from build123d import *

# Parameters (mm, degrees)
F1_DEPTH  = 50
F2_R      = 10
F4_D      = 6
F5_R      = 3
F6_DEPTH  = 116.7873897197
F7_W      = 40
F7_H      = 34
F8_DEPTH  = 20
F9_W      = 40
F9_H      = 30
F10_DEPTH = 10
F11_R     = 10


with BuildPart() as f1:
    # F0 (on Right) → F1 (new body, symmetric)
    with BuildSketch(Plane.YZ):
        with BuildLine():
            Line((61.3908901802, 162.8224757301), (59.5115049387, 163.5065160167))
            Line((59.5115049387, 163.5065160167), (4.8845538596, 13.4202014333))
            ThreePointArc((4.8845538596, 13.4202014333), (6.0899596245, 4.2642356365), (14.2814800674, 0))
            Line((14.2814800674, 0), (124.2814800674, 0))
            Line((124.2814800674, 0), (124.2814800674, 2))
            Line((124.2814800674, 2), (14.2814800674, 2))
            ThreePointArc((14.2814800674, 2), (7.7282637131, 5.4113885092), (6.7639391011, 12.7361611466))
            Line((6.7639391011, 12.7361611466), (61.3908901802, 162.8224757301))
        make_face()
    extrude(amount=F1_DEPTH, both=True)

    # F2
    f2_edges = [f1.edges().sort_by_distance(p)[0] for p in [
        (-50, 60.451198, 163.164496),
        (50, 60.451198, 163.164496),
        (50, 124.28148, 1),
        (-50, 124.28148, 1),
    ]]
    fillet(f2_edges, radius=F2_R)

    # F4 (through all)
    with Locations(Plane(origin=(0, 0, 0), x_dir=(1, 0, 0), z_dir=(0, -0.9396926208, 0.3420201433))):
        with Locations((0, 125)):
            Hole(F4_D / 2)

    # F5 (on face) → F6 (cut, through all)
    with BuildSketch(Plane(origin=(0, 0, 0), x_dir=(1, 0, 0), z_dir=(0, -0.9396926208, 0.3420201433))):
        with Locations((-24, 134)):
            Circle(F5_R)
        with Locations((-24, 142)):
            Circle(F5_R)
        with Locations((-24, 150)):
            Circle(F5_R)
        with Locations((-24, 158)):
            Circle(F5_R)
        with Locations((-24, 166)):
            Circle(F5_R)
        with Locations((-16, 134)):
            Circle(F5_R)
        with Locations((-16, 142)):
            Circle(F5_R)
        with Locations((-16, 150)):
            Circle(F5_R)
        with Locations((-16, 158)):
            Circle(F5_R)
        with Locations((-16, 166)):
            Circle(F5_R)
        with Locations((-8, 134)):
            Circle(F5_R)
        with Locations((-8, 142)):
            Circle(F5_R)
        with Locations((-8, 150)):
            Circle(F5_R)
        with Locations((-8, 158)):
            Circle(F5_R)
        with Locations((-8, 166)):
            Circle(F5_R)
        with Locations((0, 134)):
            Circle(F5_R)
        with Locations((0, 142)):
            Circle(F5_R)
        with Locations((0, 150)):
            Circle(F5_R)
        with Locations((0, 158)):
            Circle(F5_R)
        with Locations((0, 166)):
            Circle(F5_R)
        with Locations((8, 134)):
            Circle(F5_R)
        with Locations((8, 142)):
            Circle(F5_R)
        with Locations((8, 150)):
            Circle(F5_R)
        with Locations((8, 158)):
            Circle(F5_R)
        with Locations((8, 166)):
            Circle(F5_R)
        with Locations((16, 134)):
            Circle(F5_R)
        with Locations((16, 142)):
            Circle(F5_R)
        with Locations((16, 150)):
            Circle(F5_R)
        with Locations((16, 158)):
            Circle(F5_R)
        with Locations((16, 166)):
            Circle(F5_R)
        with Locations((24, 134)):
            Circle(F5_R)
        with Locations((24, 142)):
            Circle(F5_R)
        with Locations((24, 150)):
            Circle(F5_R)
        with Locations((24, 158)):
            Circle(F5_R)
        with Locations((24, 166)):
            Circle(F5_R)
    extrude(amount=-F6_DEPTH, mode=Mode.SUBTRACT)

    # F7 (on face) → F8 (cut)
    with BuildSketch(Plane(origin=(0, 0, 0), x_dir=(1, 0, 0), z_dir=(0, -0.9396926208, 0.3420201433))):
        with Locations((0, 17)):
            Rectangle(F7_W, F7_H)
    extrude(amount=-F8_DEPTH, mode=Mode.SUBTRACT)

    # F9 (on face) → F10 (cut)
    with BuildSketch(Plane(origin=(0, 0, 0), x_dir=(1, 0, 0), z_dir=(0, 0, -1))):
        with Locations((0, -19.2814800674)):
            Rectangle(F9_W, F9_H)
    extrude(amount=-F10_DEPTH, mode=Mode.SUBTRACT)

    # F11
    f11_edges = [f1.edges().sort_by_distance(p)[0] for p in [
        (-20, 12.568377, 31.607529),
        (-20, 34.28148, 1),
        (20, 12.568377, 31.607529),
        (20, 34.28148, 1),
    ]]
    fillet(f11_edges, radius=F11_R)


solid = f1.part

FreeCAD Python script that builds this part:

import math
import FreeCAD as App
import Part
import Sketcher
Q = App.Units.Quantity


def edges_at(feature, points):
    """Names of the edges that pass closest to the given points."""
    edges = feature.Shape.Edges
    near = lambda p: min(range(len(edges)), key=lambda i: edges[i].distToShape(Part.Vertex(*p))[0])
    return sorted({f"Edge{near(p) + 1}" for p in points})

doc = App.newDocument("Part")
body = doc.addObject("PartDesign::Body", "Body")

# Sketch on YZ plane
sketch1 = body.newObject("Sketcher::SketchObject", "Sketch")
sketch1.AttachmentSupport = (doc.getObject("YZ_Plane"), [""])
sketch1.MapMode = "FlatFace"
sketch1.addGeometry([
    Part.LineSegment(App.Vector(61.4, 162.8, 0), App.Vector(59.5, 163.5, 0)),  # 0
    Part.LineSegment(App.Vector(59.5, 163.5, 0), App.Vector(4.9, 13.4, 0)),  # 1
    Part.ArcOfCircle(Part.Circle(App.Vector(14.3, 10, 0), App.Vector(0, 0, 1), 10), math.radians(160), math.radians(270)),  # 2
    Part.LineSegment(App.Vector(14.3, 0, 0), App.Vector(124.3, 0, 0)),  # 3
    Part.LineSegment(App.Vector(124.3, 0, 0), App.Vector(124.3, 2, 0)),  # 4
    Part.LineSegment(App.Vector(124.3, 2, 0), App.Vector(14.3, 2, 0)),  # 5
    Part.ArcOfCircle(Part.Circle(App.Vector(14.3, 10, 0), App.Vector(0, 0, 1), 8), math.radians(160), math.radians(270)),  # 6
    Part.LineSegment(App.Vector(6.8, 12.7, 0), App.Vector(61.4, 162.8, 0)),  # 7
], False)
sketch1.addConstraint([
    Sketcher.Constraint("Coincident", 0, 2, 1, 1),
    Sketcher.Constraint("Tangent", 1, 2, 2, 1),
    Sketcher.Constraint("Tangent", 2, 2, 3, 1),
    Sketcher.Constraint("Coincident", 3, 2, 4, 1),
    Sketcher.Constraint("Coincident", 4, 2, 5, 1),
    Sketcher.Constraint("Tangent", 5, 2, 6, 2),
    Sketcher.Constraint("Tangent", 6, 1, 7, 1),
    Sketcher.Constraint("Coincident", 7, 2, 0, 1),
    Sketcher.Constraint("Horizontal", 3),
    Sketcher.Constraint("Vertical", 4),
    Sketcher.Constraint("Horizontal", 5),
    Sketcher.Constraint("Coincident", 6, 3, 2, 3),
    Sketcher.Constraint("PointOnObject", 2, 2, -1),
    Sketcher.Constraint("Perpendicular", 0, 1),
    Sketcher.Constraint("Parallel", 1, 7),
    Sketcher.Constraint("Radius", 2, 10.0),
    Sketcher.Constraint("Radius", 6, 8.0),
    Sketcher.Constraint("DistanceX", 3, 1, 3, 2, 110.0),
    Sketcher.Constraint("Angle", 0, Q("160 deg")),
    Sketcher.Constraint("Distance", 1, 159.71852),
    Sketcher.Constraint("DistanceX", -1, 1, 2, 3, 14.28148),
])
pad1 = body.newObject("PartDesign::Pad", "Pad")
pad1.Profile = sketch1
pad1.Length = 100
pad1.Midplane = True
doc.recompute()

fillet = body.newObject("PartDesign::Fillet", "Fillet")
fillet.Base = (pad1, edges_at(pad1, [
    (-50, 60.451, 163.164),
    (50, 60.451, 163.164),
    (50, 124.281, 1),
    (-50, 124.281, 1),
]))
fillet.Radius = 10

# Sketch on an angled plane
sketch2 = body.newObject("Sketcher::SketchObject", "Sketch001")
sketch2.Placement = App.Placement(App.Vector(0, 0, 0), App.Rotation(App.Vector(1, 0, 0), App.Vector(0, 0.342020143, 0.939692621), App.Vector(0, -0.939692621, 0.342020143), "ZXY"))
sketch2.addGeometry(Part.Circle(App.Vector(0, 125, 0), App.Vector(0, 0, 1), 3), False)
sketch2.addConstraint([
    Sketcher.Constraint("PointOnObject", 0, 3, -2),
    Sketcher.Constraint("Diameter", 0, 6.0),
    Sketcher.Constraint("DistanceY", -1, 1, 0, 3, 125.0),
])
doc.recompute()
hole = body.newObject("PartDesign::Hole", "Hole")
hole.Profile = sketch2
hole.ThreadType = "None"
hole.Diameter = 6
hole.DepthType = "ThroughAll"

# Sketch on an angled plane
sketch3 = body.newObject("Sketcher::SketchObject", "Sketch002")
sketch3.Placement = App.Placement(App.Vector(0, 0, 0), App.Rotation(App.Vector(1, 0, 0), App.Vector(0, 0.342020143, 0.939692621), App.Vector(0, -0.939692621, 0.342020143), "ZXY"))
sketch3.addGeometry([
    Part.Circle(App.Vector(-24, 134, 0), App.Vector(0, 0, 1), 3),  # 0
    Part.Circle(App.Vector(-24, 142, 0), App.Vector(0, 0, 1), 3),  # 1
    Part.Circle(App.Vector(-24, 150, 0), App.Vector(0, 0, 1), 3),  # 2
    Part.Circle(App.Vector(-24, 158, 0), App.Vector(0, 0, 1), 3),  # 3
    Part.Circle(App.Vector(-24, 166, 0), App.Vector(0, 0, 1), 3),  # 4
    Part.Circle(App.Vector(-16, 134, 0), App.Vector(0, 0, 1), 3),  # 5
    Part.Circle(App.Vector(-16, 142, 0), App.Vector(0, 0, 1), 3),  # 6
    Part.Circle(App.Vector(-16, 150, 0), App.Vector(0, 0, 1), 3),  # 7
    Part.Circle(App.Vector(-16, 158, 0), App.Vector(0, 0, 1), 3),  # 8
    Part.Circle(App.Vector(-16, 166, 0), App.Vector(0, 0, 1), 3),  # 9
    Part.Circle(App.Vector(-8, 134, 0), App.Vector(0, 0, 1), 3),  # 10
    Part.Circle(App.Vector(-8, 142, 0), App.Vector(0, 0, 1), 3),  # 11
    Part.Circle(App.Vector(-8, 150, 0), App.Vector(0, 0, 1), 3),  # 12
    Part.Circle(App.Vector(-8, 158, 0), App.Vector(0, 0, 1), 3),  # 13
    Part.Circle(App.Vector(-8, 166, 0), App.Vector(0, 0, 1), 3),  # 14
    Part.Circle(App.Vector(0, 134, 0), App.Vector(0, 0, 1), 3),  # 15
    Part.Circle(App.Vector(0, 142, 0), App.Vector(0, 0, 1), 3),  # 16
    Part.Circle(App.Vector(0, 150, 0), App.Vector(0, 0, 1), 3),  # 17
    Part.Circle(App.Vector(0, 158, 0), App.Vector(0, 0, 1), 3),  # 18
    Part.Circle(App.Vector(0, 166, 0), App.Vector(0, 0, 1), 3),  # 19
    Part.Circle(App.Vector(8, 134, 0), App.Vector(0, 0, 1), 3),  # 20
    Part.Circle(App.Vector(8, 142, 0), App.Vector(0, 0, 1), 3),  # 21
    Part.Circle(App.Vector(8, 150, 0), App.Vector(0, 0, 1), 3),  # 22
    Part.Circle(App.Vector(8, 158, 0), App.Vector(0, 0, 1), 3),  # 23
    Part.Circle(App.Vector(8, 166, 0), App.Vector(0, 0, 1), 3),  # 24
    Part.Circle(App.Vector(16, 134, 0), App.Vector(0, 0, 1), 3),  # 25
    Part.Circle(App.Vector(16, 142, 0), App.Vector(0, 0, 1), 3),  # 26
    Part.Circle(App.Vector(16, 150, 0), App.Vector(0, 0, 1), 3),  # 27
    Part.Circle(App.Vector(16, 158, 0), App.Vector(0, 0, 1), 3),  # 28
    Part.Circle(App.Vector(16, 166, 0), App.Vector(0, 0, 1), 3),  # 29
    Part.Circle(App.Vector(24, 134, 0), App.Vector(0, 0, 1), 3),  # 30
    Part.Circle(App.Vector(24, 142, 0), App.Vector(0, 0, 1), 3),  # 31
    Part.Circle(App.Vector(24, 150, 0), App.Vector(0, 0, 1), 3),  # 32
    Part.Circle(App.Vector(24, 158, 0), App.Vector(0, 0, 1), 3),  # 33
    Part.Circle(App.Vector(24, 166, 0), App.Vector(0, 0, 1), 3),  # 34
], False)
sketch3.addConstraint([
    Sketcher.Constraint("Equal", 0, 1),
    Sketcher.Constraint("Equal", 1, 2),
    Sketcher.Constraint("Equal", 2, 3),
    Sketcher.Constraint("Equal", 3, 4),
    Sketcher.Constraint("Equal", 4, 5),
    Sketcher.Constraint("Equal", 5, 6),
    Sketcher.Constraint("Equal", 6, 7),
    Sketcher.Constraint("Equal", 7, 8),
    Sketcher.Constraint("Equal", 8, 9),
    Sketcher.Constraint("Equal", 9, 10),
    Sketcher.Constraint("Equal", 10, 11),
    Sketcher.Constraint("Equal", 11, 12),
    Sketcher.Constraint("Equal", 12, 13),
    Sketcher.Constraint("Equal", 13, 14),
    Sketcher.Constraint("Equal", 14, 15),
    Sketcher.Constraint("Equal", 15, 16),
    Sketcher.Constraint("Equal", 16, 17),
    Sketcher.Constraint("Equal", 17, 18),
    Sketcher.Constraint("Equal", 18, 19),
    Sketcher.Constraint("Equal", 19, 20),
    Sketcher.Constraint("Equal", 20, 21),
    Sketcher.Constraint("Equal", 21, 22),
    Sketcher.Constraint("Equal", 22, 23),
    Sketcher.Constraint("Equal", 23, 24),
    Sketcher.Constraint("Equal", 24, 25),
    Sketcher.Constraint("Equal", 25, 26),
    Sketcher.Constraint("Equal", 26, 27),
    Sketcher.Constraint("Equal", 27, 28),
    Sketcher.Constraint("Equal", 28, 29),
    Sketcher.Constraint("Equal", 29, 30),
    Sketcher.Constraint("Equal", 30, 31),
    Sketcher.Constraint("Equal", 31, 32),
    Sketcher.Constraint("Equal", 32, 33),
    Sketcher.Constraint("Equal", 33, 34),
    Sketcher.Constraint("Symmetric", 10, 3, 20, 3, -2),
    Sketcher.Constraint("Symmetric", 11, 3, 21, 3, -2),
    Sketcher.Constraint("Symmetric", 12, 3, 22, 3, -2),
    Sketcher.Constraint("Symmetric", 13, 3, 23, 3, -2),
    Sketcher.Constraint("Symmetric", 14, 3, 24, 3, -2),
    Sketcher.Constraint("Symmetric", 5, 3, 25, 3, -2),
    Sketcher.Constraint("Symmetric", 6, 3, 26, 3, -2),
    Sketcher.Constraint("Symmetric", 7, 3, 27, 3, -2),
    Sketcher.Constraint("Symmetric", 8, 3, 28, 3, -2),
    Sketcher.Constraint("Symmetric", 9, 3, 29, 3, -2),
    Sketcher.Constraint("Symmetric", 0, 3, 30, 3, -2),
    Sketcher.Constraint("Symmetric", 1, 3, 31, 3, -2),
    Sketcher.Constraint("Symmetric", 2, 3, 32, 3, -2),
    Sketcher.Constraint("Symmetric", 3, 3, 33, 3, -2),
    Sketcher.Constraint("Symmetric", 4, 3, 34, 3, -2),
    Sketcher.Constraint("PointOnObject", 15, 3, -2),
    Sketcher.Constraint("PointOnObject", 16, 3, -2),
    Sketcher.Constraint("PointOnObject", 17, 3, -2),
    Sketcher.Constraint("PointOnObject", 18, 3, -2),
    Sketcher.Constraint("PointOnObject", 19, 3, -2),
    Sketcher.Constraint("Horizontal", 0, 3, 5, 3),
    Sketcher.Constraint("Horizontal", 1, 3, 6, 3),
    Sketcher.Constraint("Horizontal", 2, 3, 7, 3),
    Sketcher.Constraint("Horizontal", 3, 3, 8, 3),
    Sketcher.Constraint("Horizontal", 4, 3, 9, 3),
    Sketcher.Constraint("Horizontal", 5, 3, 10, 3),
    Sketcher.Constraint("Horizontal", 6, 3, 11, 3),
    Sketcher.Constraint("Horizontal", 7, 3, 12, 3),
    Sketcher.Constraint("Horizontal", 8, 3, 13, 3),
    Sketcher.Constraint("Horizontal", 9, 3, 14, 3),
    Sketcher.Constraint("Horizontal", 10, 3, 15, 3),
    Sketcher.Constraint("Horizontal", 11, 3, 16, 3),
    Sketcher.Constraint("Horizontal", 12, 3, 17, 3),
    Sketcher.Constraint("Horizontal", 13, 3, 18, 3),
    Sketcher.Constraint("Horizontal", 14, 3, 19, 3),
    Sketcher.Constraint("Vertical", 0, 3, 1, 3),
    Sketcher.Constraint("Vertical", 1, 3, 2, 3),
    Sketcher.Constraint("Vertical", 2, 3, 3, 3),
    Sketcher.Constraint("Vertical", 3, 3, 4, 3),
    Sketcher.Constraint("Vertical", 5, 3, 6, 3),
    Sketcher.Constraint("Vertical", 6, 3, 7, 3),
    Sketcher.Constraint("Vertical", 7, 3, 8, 3),
    Sketcher.Constraint("Vertical", 8, 3, 9, 3),
    Sketcher.Constraint("Vertical", 10, 3, 11, 3),
    Sketcher.Constraint("Vertical", 11, 3, 12, 3),
    Sketcher.Constraint("Vertical", 12, 3, 13, 3),
    Sketcher.Constraint("Vertical", 13, 3, 14, 3),
    Sketcher.Constraint("Diameter", 0, 6.0),
    Sketcher.Constraint("DistanceX", 0, 3, -1, 1, 24.0),
    Sketcher.Constraint("DistanceY", -1, 1, 0, 3, 134.0),
    Sketcher.Constraint("DistanceY", -1, 1, 1, 3, 142.0),
    Sketcher.Constraint("DistanceY", -1, 1, 2, 3, 150.0),
    Sketcher.Constraint("DistanceY", -1, 1, 3, 3, 158.0),
    Sketcher.Constraint("DistanceY", -1, 1, 4, 3, 166.0),
    Sketcher.Constraint("DistanceX", 5, 3, -1, 1, 16.0),
    Sketcher.Constraint("DistanceX", 10, 3, -1, 1, 8.0),
])
pocket1 = body.newObject("PartDesign::Pocket", "Pocket")
pocket1.Profile = sketch3
pocket1.Type = "ThroughAll"

# Sketch on an angled plane
sketch4 = body.newObject("Sketcher::SketchObject", "Sketch003")
sketch4.Placement = App.Placement(App.Vector(0, 0, 0), App.Rotation(App.Vector(1, 0, 0), App.Vector(0, 0.342020143, 0.939692621), App.Vector(0, -0.939692621, 0.342020143), "ZXY"))
sketch4.addGeometry([
    Part.LineSegment(App.Vector(-20, 34, 0), App.Vector(-20, 0, 0)),
    Part.LineSegment(App.Vector(-20, 0, 0), App.Vector(20, 0, 0)),
    Part.LineSegment(App.Vector(20, 0, 0), App.Vector(20, 34, 0)),
    Part.LineSegment(App.Vector(20, 34, 0), App.Vector(-20, 34, 0)),
], False)
sketch4.addConstraint([
    Sketcher.Constraint("Coincident", 0, 2, 1, 1),
    Sketcher.Constraint("Coincident", 1, 2, 2, 1),
    Sketcher.Constraint("Coincident", 2, 2, 3, 1),
    Sketcher.Constraint("Coincident", 3, 2, 0, 1),
    Sketcher.Constraint("Vertical", 0),
    Sketcher.Constraint("Horizontal", 1),
    Sketcher.Constraint("Vertical", 2),
    Sketcher.Constraint("Horizontal", 3),
    Sketcher.Constraint("Symmetric", 0, 2, 1, 2, -1, 1),
    Sketcher.Constraint("DistanceX", 1, 1, 1, 2, 40.0),
    Sketcher.Constraint("DistanceY", 0, 2, 0, 1, 34.0),
])
pocket2 = body.newObject("PartDesign::Pocket", "Pocket001")
pocket2.Profile = sketch4
pocket2.Length = 20

# Sketch on XY plane
sketch5 = body.newObject("Sketcher::SketchObject", "Sketch004")
sketch5.AttachmentSupport = (doc.getObject("XY_Plane"), [""])
sketch5.MapMode = "FlatFace"
sketch5.addGeometry([
    Part.LineSegment(App.Vector(-20, 4, 0), App.Vector(-20, 34, 0)),
    Part.LineSegment(App.Vector(-20, 34, 0), App.Vector(20, 34, 0)),
    Part.LineSegment(App.Vector(20, 34, 0), App.Vector(20, 4, 0)),
    Part.LineSegment(App.Vector(20, 4, 0), App.Vector(-20, 4, 0)),
], False)
sketch5.addConstraint([
    Sketcher.Constraint("Coincident", 0, 2, 1, 1),
    Sketcher.Constraint("Coincident", 1, 2, 2, 1),
    Sketcher.Constraint("Coincident", 2, 2, 3, 1),
    Sketcher.Constraint("Coincident", 3, 2, 0, 1),
    Sketcher.Constraint("Vertical", 0),
    Sketcher.Constraint("Horizontal", 1),
    Sketcher.Constraint("Vertical", 2),
    Sketcher.Constraint("Horizontal", 3),
    Sketcher.Constraint("DistanceX", 1, 1, 1, 2, 40.0),
    Sketcher.Constraint("DistanceY", 0, 1, 0, 2, 30.0),
    Sketcher.Constraint("DistanceX", 0, 2, -1, 1, 20.0),
    Sketcher.Constraint("DistanceY", -1, 1, 0, 2, 34.28148),
])
pocket3 = body.newObject("PartDesign::Pocket", "Pocket002")
pocket3.Profile = sketch5
pocket3.Length = 10
pocket3.Reversed = True
doc.recompute()

fillet2 = body.newObject("PartDesign::Fillet", "Fillet001")
fillet2.Base = (pocket3, edges_at(pocket3, [
    (-20, 12.568, 31.608),
    (-20, 34.281, 1),
    (20, 12.568, 31.608),
    (20, 34.281, 1),
]))
fillet2.Radius = 10

doc.recompute()
